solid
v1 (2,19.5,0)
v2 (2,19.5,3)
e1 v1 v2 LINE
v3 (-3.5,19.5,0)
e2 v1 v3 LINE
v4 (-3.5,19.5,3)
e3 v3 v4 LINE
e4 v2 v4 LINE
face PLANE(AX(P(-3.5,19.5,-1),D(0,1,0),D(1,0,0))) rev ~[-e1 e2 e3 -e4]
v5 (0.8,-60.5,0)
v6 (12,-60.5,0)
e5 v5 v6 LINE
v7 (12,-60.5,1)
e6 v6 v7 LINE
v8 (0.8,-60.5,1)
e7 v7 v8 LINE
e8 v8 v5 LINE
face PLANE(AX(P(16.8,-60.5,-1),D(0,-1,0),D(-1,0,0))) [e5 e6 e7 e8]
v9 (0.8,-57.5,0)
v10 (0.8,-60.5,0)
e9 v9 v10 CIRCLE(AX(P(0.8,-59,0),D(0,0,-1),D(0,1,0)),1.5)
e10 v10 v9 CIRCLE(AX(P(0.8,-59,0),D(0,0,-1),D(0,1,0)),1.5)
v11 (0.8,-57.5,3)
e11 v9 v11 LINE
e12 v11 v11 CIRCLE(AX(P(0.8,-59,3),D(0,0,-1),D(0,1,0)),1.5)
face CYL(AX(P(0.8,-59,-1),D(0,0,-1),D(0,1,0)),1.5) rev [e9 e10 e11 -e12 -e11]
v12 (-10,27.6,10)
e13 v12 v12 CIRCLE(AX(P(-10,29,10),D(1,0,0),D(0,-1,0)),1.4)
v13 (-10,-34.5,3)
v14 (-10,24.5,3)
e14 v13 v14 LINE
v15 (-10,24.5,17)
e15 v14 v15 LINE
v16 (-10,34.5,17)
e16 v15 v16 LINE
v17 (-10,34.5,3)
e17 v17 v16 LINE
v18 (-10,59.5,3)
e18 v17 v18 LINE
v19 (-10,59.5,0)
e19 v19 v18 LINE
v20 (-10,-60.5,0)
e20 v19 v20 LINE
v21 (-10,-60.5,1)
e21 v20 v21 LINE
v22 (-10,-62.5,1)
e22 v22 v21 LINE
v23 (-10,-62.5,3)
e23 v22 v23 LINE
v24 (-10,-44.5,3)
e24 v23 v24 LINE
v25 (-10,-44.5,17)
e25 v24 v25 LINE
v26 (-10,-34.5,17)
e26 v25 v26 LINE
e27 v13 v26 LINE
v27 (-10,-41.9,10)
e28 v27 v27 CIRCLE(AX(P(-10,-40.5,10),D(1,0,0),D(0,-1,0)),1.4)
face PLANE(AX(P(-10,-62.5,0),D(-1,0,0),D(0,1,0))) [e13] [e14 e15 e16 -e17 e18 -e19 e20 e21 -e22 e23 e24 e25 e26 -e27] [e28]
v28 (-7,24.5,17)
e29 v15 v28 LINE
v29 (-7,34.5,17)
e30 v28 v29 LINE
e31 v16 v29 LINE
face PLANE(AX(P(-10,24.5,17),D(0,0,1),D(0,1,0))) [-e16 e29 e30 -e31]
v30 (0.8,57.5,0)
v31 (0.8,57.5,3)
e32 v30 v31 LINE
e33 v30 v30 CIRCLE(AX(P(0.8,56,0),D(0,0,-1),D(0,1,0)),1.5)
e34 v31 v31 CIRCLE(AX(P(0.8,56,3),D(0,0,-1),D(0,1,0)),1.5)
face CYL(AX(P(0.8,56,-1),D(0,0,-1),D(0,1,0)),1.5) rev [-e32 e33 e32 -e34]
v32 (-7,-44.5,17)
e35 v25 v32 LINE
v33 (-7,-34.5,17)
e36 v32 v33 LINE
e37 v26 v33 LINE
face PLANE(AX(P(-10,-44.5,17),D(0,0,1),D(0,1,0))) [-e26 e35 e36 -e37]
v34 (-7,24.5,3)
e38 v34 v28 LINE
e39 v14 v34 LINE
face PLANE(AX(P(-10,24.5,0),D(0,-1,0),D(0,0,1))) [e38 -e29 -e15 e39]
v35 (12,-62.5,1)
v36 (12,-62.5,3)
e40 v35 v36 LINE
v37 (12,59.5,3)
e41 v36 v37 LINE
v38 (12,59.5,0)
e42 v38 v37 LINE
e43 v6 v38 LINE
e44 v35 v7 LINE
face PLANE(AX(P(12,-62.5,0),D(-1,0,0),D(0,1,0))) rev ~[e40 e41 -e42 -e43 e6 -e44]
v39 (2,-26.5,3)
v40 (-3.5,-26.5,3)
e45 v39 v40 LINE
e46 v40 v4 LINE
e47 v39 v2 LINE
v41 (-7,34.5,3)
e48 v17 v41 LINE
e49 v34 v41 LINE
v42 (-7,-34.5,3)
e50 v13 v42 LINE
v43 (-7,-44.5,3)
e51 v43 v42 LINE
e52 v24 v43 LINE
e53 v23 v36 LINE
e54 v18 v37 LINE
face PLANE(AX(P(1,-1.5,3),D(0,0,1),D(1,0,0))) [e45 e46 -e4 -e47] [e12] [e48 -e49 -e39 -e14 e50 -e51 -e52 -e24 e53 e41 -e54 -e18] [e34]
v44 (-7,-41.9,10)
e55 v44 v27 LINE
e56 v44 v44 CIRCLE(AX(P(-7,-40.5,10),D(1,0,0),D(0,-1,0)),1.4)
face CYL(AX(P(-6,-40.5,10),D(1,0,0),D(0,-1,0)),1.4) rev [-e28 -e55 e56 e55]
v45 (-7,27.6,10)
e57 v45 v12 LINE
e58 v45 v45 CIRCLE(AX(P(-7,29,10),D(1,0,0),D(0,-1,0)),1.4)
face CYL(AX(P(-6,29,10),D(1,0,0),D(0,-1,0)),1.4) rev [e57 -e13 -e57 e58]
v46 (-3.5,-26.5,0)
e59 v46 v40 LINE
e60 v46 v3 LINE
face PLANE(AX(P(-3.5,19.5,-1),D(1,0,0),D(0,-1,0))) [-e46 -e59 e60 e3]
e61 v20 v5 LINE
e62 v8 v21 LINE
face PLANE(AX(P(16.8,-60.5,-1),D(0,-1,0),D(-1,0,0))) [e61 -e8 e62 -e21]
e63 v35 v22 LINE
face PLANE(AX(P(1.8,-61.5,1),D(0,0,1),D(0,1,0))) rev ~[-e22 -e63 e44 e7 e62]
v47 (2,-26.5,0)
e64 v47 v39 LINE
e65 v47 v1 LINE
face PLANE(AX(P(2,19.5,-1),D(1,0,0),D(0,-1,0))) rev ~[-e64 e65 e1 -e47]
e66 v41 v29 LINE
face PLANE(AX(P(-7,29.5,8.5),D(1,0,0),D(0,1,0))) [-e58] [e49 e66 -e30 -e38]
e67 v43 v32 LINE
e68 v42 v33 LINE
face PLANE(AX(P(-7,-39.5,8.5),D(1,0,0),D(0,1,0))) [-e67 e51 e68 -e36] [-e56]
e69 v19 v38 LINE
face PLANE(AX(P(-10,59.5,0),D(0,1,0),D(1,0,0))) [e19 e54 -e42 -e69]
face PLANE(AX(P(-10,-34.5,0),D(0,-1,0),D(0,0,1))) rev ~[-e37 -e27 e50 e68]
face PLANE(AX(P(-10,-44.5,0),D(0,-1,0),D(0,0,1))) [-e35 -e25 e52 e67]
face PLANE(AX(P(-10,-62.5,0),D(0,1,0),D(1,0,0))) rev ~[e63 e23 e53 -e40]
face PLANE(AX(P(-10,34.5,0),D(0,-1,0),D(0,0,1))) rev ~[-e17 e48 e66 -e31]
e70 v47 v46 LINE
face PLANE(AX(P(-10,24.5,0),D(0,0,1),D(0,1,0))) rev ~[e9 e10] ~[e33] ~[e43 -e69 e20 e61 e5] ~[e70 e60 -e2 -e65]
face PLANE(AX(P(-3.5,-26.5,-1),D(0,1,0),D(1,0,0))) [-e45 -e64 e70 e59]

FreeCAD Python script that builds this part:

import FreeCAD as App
import Part
import Sketcher

V = App.Vector

doc = App.newDocument("Part")
body = doc.addObject("PartDesign::Body", "Body")

# Sketch on XY plane
sketch1 = body.newObject("Sketcher::SketchObject", "Sketch")
sketch1.AttachmentSupport = (doc.getObject("XY_Plane"), [""])
sketch1.MapMode = "FlatFace"
sketch1.addGeometry(Part.LineSegment(V(-10, 60, 0), V(-10, -62, 0)), False)
sketch1.addGeometry(Part.LineSegment(V(-10, -62, 0), V(12, -62, 0)), False)
sketch1.addGeometry(Part.LineSegment(V(12, -62, 0), V(12, 60, 0)), False)
sketch1.addGeometry(Part.LineSegment(V(12, 60, 0), V(-10, 60, 0)), False)
sketch1.addConstraint(Sketcher.Constraint("Coincident", 0, 2, 1, 1))
sketch1.addConstraint(Sketcher.Constraint("Coincident", 1, 2, 2, 1))
sketch1.addConstraint(Sketcher.Constraint("Coincident", 2, 2, 3, 1))
sketch1.addConstraint(Sketcher.Constraint("Coincident", 3, 2, 0, 1))
sketch1.addConstraint(Sketcher.Constraint("Vertical", 0))
sketch1.addConstraint(Sketcher.Constraint("Horizontal", 1))
sketch1.addConstraint(Sketcher.Constraint("Vertical", 2))
sketch1.addConstraint(Sketcher.Constraint("Horizontal", 3))
sketch1.addConstraint(Sketcher.Constraint("DistanceX", 1, 1, 1, 2, 22.0))
sketch1.addConstraint(Sketcher.Constraint("DistanceY", 0, 2, 0, 1, 122.0))
sketch1.addConstraint(Sketcher.Constraint("DistanceX", 0, 2, -1, 1, 10.0))
sketch1.addConstraint(Sketcher.Constraint("DistanceY", 0, 2, -1, 1, 62.5))
pad1 = body.newObject("PartDesign::Pad", "Pad")
pad1.Profile = sketch1
pad1.Length = 3

# Sketch on YZ plane
sketch2 = body.newObject("Sketcher::SketchObject", "Sketch001")
sketch2.AttachmentSupport = (doc.getObject("YZ_Plane"), [""])
sketch2.MapMode = "FlatFace"
sketch2.AttachmentOffset = App.Placement(V(0, 0, -10), App.Rotation())
sketch2.addGeometry(Part.LineSegment(V(-44, 17, 0), V(-44, 0, 0)), False)
sketch2.addGeometry(Part.LineSegment(V(-44, 0, 0), V(-34, 0, 0)), False)
sketch2.addGeometry(Part.LineSegment(V(-34, 0, 0), V(-34, 17, 0)), False)
sketch2.addGeometry(Part.LineSegment(V(-34, 17, 0), V(-44, 17, 0)), False)
sketch2.addConstraint(Sketcher.Constraint("Coincident", 0, 2, 1, 1))
sketch2.addConstraint(Sketcher.Constraint("Coincident", 1, 2, 2, 1))
sketch2.addConstraint(Sketcher.Constraint("Coincident", 2, 2, 3, 1))
sketch2.addConstraint(Sketcher.Constraint("Coincident", 3, 2, 0, 1))
sketch2.addConstraint(Sketcher.Constraint("Vertical", 0))
sketch2.addConstraint(Sketcher.Constraint("Horizontal", 1))
sketch2.addConstraint(Sketcher.Constraint("Vertical", 2))
sketch2.addConstraint(Sketcher.Constraint("Horizontal", 3))
sketch2.addConstraint(Sketcher.Constraint("PointOnObject", 0, 2, -1))
sketch2.addConstraint(Sketcher.Constraint("DistanceX", 1, 1, 1, 2, 10.0))
sketch2.addConstraint(Sketcher.Constraint("DistanceY", 0, 2, 0, 1, 17.0))
sketch2.addConstraint(Sketcher.Constraint("DistanceX", 0, 2, -1, 1, 44.5))
pad2 = body.newObject("PartDesign::Pad", "Pad001")
pad2.Profile = sketch2
pad2.Length = 3

# Sketch on YZ plane
sketch3 = body.newObject("Sketcher::SketchObject", "Sketch002")
sketch3.AttachmentSupport = (doc.getObject("YZ_Plane"), [""])
sketch3.MapMode = "FlatFace"
sketch3.AttachmentOffset = App.Placement(V(0, 0, -10), App.Rotation())
sketch3.addGeometry(Part.LineSegment(V(24, 17, 0), V(24, 0, 0)), False)
sketch3.addGeometry(Part.LineSegment(V(24, 0, 0), V(34, 0, 0)), False)
sketch3.addGeometry(Part.LineSegment(V(34, 0, 0), V(34, 17, 0)), False)
sketch3.addGeometry(Part.LineSegment(V(34, 17, 0), V(24, 17, 0)), False)
sketch3.addConstraint(Sketcher.Constraint("Coincident", 0, 2, 1, 1))
sketch3.addConstraint(Sketcher.Constraint("Coincident", 1, 2, 2, 1))
sketch3.addConstraint(Sketcher.Constraint("Coincident", 2, 2, 3, 1))
sketch3.addConstraint(Sketcher.Constraint("Coincident", 3, 2, 0, 1))
sketch3.addConstraint(Sketcher.Constraint("Vertical", 0))
sketch3.addConstraint(Sketcher.Constraint("Horizontal", 1))
sketch3.addConstraint(Sketcher.Constraint("Vertical", 2))
sketch3.addConstraint(Sketcher.Constraint("Horizontal", 3))
sketch3.addConstraint(Sketcher.Constraint("PointOnObject", 0, 2, -1))
sketch3.addConstraint(Sketcher.Constraint("DistanceX", 1, 1, 1, 2, 10.0))
sketch3.addConstraint(Sketcher.Constraint("DistanceY", 0, 2, 0, 1, 17.0))
sketch3.addConstraint(Sketcher.Constraint("DistanceX", -1, 1, 0, 2, 24.5))
pad3 = body.newObject("PartDesign::Pad", "Pad002")
pad3.Profile = sketch3
pad3.Length = 3

# Sketch on XY plane
sketch4 = body.newObject("Sketcher::SketchObject", "Sketch003")
sketch4.AttachmentSupport = (doc.getObject("XY_Plane"), [""])
sketch4.MapMode = "FlatFace"
sketch4.AttachmentOffset = App.Placement(V(0, 0, -1), App.Rotation())
sketch4.addGeometry(Part.LineSegment(V(2, 20, 0), V(-4, 20, 0)), False)
sketch4.addGeometry(Part.LineSegment(V(-4, 20, 0), V(-4, -26, 0)), False)
sketch4.addGeometry(Part.LineSegment(V(-4, -26, 0), V(2, -26, 0)), False)
sketch4.addGeometry(Part.LineSegment(V(2, -26, 0), V(2, 20, 0)), False)
sketch4.addConstraint(Sketcher.Constraint("Coincident", 0, 2, 1, 1))
sketch4.addConstraint(Sketcher.Constraint("Coincident", 1, 2, 2, 1))
sketch4.addConstraint(Sketcher.Constraint("Coincident", 2, 2, 3, 1))
sketch4.addConstraint(Sketcher.Constraint("Coincident", 3, 2, 0, 1))
sketch4.addConstraint(Sketcher.Constraint("Horizontal", 0))
sketch4.addConstraint(Sketcher.Constraint("Vertical", 1))
sketch4.addConstraint(Sketcher.Constraint("Horizontal", 2))
sketch4.addConstraint(Sketcher.Constraint("Vertical", 3))
sketch4.addConstraint(Sketcher.Constraint("DistanceY", 1, 2, 1, 1, 46.0))
sketch4.addConstraint(Sketcher.Constraint("DistanceX", 0, 2, 0, 1, 5.5))
sketch4.addConstraint(Sketcher.Constraint("DistanceX", -1, 1, 2, 2, 2.0))
sketch4.addConstraint(Sketcher.Constraint("DistanceY", -1, 1, 0, 2, 19.5))
pocket1 = body.newObject("PartDesign::Pocket", "Pocket")
pocket1.Profile = sketch4
pocket1.Length = 5
pocket1.Reversed = True

# Sketch on XY plane
sketch5 = body.newObject("Sketcher::SketchObject", "Sketch004")
sketch5.AttachmentSupport = (doc.getObject("XY_Plane"), [""])
sketch5.MapMode = "FlatFace"
sketch5.AttachmentOffset = App.Placement(V(0, 0, -1), App.Rotation())
sketch5.addGeometry(Part.Circle(V(0.8, -59, 0), V(0, 0, 1), 1.5), False)
sketch5.addConstraint(Sketcher.Constraint("Diameter", 0, 3.0))
sketch5.addConstraint(Sketcher.Constraint("DistanceY", 0, 3, -1, 1, 59.0))
sketch5.addConstraint(Sketcher.Constraint("DistanceX", -1, 1, 0, 3, 0.8))
pocket2 = body.newObject("PartDesign::Pocket", "Pocket001")
pocket2.Profile = sketch5
pocket2.Length = 5
pocket2.Reversed = True

# Sketch on XY plane
sketch6 = body.newObject("Sketcher::SketchObject", "Sketch005")
sketch6.AttachmentSupport = (doc.getObject("XY_Plane"), [""])
sketch6.MapMode = "FlatFace"
sketch6.AttachmentOffset = App.Placement(V(0, 0, -1), App.Rotation())
sketch6.addGeometry(Part.Circle(V(0.8, 56, 0), V(0, 0, 1), 1.5), False)
sketch6.addConstraint(Sketcher.Constraint("Diameter", 0, 3.0))
sketch6.addConstraint(Sketcher.Constraint("DistanceY", -1, 1, 0, 3, 56.0))
sketch6.addConstraint(Sketcher.Constraint("DistanceX", -1, 1, 0, 3, 0.8))
pocket3 = body.newObject("PartDesign::Pocket", "Pocket002")
pocket3.Profile = sketch6
pocket3.Length = 5
pocket3.Reversed = True

# Sketch on XY plane
sketch7 = body.newObject("Sketcher::SketchObject", "Sketch006")
sketch7.AttachmentSupport = (doc.getObject("XY_Plane"), [""])
sketch7.MapMode = "FlatFace"
sketch7.AttachmentOffset = App.Placement(V(0, 0, -1), App.Rotation())
sketch7.addGeometry(Part.LineSegment(V(-13.2, -62.5, 0), V(16.8, -62.5, 0)), False)
sketch7.addGeometry(Part.LineSegment(V(16.8, -62.5, 0), V(16.8, -60.5, 0)), False)
sketch7.addGeometry(Part.LineSegment(V(16.8, -60.5, 0), V(-13.2, -60.5, 0)), False)
sketch7.addGeometry(Part.LineSegment(V(-13.2, -60.5, 0), V(-13.2, -62.5, 0)), False)
sketch7.addConstraint(Sketcher.Constraint("Coincident", 0, 2, 1, 1))
sketch7.addConstraint(Sketcher.Constraint("Coincident", 1, 2, 2, 1))
sketch7.addConstraint(Sketcher.Constraint("Coincident", 2, 2, 3, 1))
sketch7.addConstraint(Sketcher.Constraint("Coincident", 3, 2, 0, 1))
sketch7.addConstraint(Sketcher.Constraint("Horizontal", 0))
sketch7.addConstraint(Sketcher.Constraint("Vertical", 1))
sketch7.addConstraint(Sketcher.Constraint("Horizontal", 2))
sketch7.addConstraint(Sketcher.Constraint("Vertical", 3))
sketch7.addConstraint(Sketcher.Constraint("DistanceX", 0, 1, 0, 2, 30.0))
sketch7.addConstraint(Sketcher.Constraint("DistanceY", 1, 1, 1, 2, 2.0))
sketch7.addConstraint(Sketcher.Constraint("DistanceX", -1, 1, 0, 2, 16.8))
sketch7.addConstraint(Sketcher.Constraint("DistanceY", 0, 2, -1, 1, 62.5))
pocket4 = body.newObject("PartDesign::Pocket", "Pocket003")
pocket4.Profile = sketch7
pocket4.Length = 2
pocket4.Reversed = True

# Sketch on YZ plane
sketch8 = body.newObject("Sketcher::SketchObject", "Sketch007")
sketch8.AttachmentSupport = (doc.getObject("YZ_Plane"), [""])
sketch8.MapMode = "FlatFace"
sketch8.AttachmentOffset = App.Placement(V(0, 0, -6), App.Rotation())
sketch8.addGeometry(Part.Circle(V(-40.5, 10, 0), V(0, 0, 1), 1.4), False)
sketch8.addConstraint(Sketcher.Constraint("Diameter", 0, 2.8))
sketch8.addConstraint(Sketcher.Constraint("DistanceY", -1, 1, 0, 3, 10.0))
sketch8.addConstraint(Sketcher.Constraint("DistanceX", 0, 3, -1, 1, 40.5))
pocket5 = body.newObject("PartDesign::Pocket", "Pocket004")
pocket5.Profile = sketch8
pocket5.Length = 5

# Sketch on YZ plane
sketch9 = body.newObject("Sketcher::SketchObject", "Sketch008")
sketch9.AttachmentSupport = (doc.getObject("YZ_Plane"), [""])
sketch9.MapMode = "FlatFace"
sketch9.AttachmentOffset = App.Placement(V(0, 0, -6), App.Rotation())
sketch9.addGeometry(Part.Circle(V(29, 10, 0), V(0, 0, 1), 1.4), False)
sketch9.addConstraint(Sketcher.Constraint("Diameter", 0, 2.8))
sketch9.addConstraint(Sketcher.Constraint("DistanceX", -1, 1, 0, 3, 29.0))
sketch9.addConstraint(Sketcher.Constraint("DistanceY", -1, 1, 0, 3, 10.0))
pocket6 = body.newObject("PartDesign::Pocket", "Pocket005")
pocket6.Profile = sketch9
pocket6.Length = 5

doc.recompute()
